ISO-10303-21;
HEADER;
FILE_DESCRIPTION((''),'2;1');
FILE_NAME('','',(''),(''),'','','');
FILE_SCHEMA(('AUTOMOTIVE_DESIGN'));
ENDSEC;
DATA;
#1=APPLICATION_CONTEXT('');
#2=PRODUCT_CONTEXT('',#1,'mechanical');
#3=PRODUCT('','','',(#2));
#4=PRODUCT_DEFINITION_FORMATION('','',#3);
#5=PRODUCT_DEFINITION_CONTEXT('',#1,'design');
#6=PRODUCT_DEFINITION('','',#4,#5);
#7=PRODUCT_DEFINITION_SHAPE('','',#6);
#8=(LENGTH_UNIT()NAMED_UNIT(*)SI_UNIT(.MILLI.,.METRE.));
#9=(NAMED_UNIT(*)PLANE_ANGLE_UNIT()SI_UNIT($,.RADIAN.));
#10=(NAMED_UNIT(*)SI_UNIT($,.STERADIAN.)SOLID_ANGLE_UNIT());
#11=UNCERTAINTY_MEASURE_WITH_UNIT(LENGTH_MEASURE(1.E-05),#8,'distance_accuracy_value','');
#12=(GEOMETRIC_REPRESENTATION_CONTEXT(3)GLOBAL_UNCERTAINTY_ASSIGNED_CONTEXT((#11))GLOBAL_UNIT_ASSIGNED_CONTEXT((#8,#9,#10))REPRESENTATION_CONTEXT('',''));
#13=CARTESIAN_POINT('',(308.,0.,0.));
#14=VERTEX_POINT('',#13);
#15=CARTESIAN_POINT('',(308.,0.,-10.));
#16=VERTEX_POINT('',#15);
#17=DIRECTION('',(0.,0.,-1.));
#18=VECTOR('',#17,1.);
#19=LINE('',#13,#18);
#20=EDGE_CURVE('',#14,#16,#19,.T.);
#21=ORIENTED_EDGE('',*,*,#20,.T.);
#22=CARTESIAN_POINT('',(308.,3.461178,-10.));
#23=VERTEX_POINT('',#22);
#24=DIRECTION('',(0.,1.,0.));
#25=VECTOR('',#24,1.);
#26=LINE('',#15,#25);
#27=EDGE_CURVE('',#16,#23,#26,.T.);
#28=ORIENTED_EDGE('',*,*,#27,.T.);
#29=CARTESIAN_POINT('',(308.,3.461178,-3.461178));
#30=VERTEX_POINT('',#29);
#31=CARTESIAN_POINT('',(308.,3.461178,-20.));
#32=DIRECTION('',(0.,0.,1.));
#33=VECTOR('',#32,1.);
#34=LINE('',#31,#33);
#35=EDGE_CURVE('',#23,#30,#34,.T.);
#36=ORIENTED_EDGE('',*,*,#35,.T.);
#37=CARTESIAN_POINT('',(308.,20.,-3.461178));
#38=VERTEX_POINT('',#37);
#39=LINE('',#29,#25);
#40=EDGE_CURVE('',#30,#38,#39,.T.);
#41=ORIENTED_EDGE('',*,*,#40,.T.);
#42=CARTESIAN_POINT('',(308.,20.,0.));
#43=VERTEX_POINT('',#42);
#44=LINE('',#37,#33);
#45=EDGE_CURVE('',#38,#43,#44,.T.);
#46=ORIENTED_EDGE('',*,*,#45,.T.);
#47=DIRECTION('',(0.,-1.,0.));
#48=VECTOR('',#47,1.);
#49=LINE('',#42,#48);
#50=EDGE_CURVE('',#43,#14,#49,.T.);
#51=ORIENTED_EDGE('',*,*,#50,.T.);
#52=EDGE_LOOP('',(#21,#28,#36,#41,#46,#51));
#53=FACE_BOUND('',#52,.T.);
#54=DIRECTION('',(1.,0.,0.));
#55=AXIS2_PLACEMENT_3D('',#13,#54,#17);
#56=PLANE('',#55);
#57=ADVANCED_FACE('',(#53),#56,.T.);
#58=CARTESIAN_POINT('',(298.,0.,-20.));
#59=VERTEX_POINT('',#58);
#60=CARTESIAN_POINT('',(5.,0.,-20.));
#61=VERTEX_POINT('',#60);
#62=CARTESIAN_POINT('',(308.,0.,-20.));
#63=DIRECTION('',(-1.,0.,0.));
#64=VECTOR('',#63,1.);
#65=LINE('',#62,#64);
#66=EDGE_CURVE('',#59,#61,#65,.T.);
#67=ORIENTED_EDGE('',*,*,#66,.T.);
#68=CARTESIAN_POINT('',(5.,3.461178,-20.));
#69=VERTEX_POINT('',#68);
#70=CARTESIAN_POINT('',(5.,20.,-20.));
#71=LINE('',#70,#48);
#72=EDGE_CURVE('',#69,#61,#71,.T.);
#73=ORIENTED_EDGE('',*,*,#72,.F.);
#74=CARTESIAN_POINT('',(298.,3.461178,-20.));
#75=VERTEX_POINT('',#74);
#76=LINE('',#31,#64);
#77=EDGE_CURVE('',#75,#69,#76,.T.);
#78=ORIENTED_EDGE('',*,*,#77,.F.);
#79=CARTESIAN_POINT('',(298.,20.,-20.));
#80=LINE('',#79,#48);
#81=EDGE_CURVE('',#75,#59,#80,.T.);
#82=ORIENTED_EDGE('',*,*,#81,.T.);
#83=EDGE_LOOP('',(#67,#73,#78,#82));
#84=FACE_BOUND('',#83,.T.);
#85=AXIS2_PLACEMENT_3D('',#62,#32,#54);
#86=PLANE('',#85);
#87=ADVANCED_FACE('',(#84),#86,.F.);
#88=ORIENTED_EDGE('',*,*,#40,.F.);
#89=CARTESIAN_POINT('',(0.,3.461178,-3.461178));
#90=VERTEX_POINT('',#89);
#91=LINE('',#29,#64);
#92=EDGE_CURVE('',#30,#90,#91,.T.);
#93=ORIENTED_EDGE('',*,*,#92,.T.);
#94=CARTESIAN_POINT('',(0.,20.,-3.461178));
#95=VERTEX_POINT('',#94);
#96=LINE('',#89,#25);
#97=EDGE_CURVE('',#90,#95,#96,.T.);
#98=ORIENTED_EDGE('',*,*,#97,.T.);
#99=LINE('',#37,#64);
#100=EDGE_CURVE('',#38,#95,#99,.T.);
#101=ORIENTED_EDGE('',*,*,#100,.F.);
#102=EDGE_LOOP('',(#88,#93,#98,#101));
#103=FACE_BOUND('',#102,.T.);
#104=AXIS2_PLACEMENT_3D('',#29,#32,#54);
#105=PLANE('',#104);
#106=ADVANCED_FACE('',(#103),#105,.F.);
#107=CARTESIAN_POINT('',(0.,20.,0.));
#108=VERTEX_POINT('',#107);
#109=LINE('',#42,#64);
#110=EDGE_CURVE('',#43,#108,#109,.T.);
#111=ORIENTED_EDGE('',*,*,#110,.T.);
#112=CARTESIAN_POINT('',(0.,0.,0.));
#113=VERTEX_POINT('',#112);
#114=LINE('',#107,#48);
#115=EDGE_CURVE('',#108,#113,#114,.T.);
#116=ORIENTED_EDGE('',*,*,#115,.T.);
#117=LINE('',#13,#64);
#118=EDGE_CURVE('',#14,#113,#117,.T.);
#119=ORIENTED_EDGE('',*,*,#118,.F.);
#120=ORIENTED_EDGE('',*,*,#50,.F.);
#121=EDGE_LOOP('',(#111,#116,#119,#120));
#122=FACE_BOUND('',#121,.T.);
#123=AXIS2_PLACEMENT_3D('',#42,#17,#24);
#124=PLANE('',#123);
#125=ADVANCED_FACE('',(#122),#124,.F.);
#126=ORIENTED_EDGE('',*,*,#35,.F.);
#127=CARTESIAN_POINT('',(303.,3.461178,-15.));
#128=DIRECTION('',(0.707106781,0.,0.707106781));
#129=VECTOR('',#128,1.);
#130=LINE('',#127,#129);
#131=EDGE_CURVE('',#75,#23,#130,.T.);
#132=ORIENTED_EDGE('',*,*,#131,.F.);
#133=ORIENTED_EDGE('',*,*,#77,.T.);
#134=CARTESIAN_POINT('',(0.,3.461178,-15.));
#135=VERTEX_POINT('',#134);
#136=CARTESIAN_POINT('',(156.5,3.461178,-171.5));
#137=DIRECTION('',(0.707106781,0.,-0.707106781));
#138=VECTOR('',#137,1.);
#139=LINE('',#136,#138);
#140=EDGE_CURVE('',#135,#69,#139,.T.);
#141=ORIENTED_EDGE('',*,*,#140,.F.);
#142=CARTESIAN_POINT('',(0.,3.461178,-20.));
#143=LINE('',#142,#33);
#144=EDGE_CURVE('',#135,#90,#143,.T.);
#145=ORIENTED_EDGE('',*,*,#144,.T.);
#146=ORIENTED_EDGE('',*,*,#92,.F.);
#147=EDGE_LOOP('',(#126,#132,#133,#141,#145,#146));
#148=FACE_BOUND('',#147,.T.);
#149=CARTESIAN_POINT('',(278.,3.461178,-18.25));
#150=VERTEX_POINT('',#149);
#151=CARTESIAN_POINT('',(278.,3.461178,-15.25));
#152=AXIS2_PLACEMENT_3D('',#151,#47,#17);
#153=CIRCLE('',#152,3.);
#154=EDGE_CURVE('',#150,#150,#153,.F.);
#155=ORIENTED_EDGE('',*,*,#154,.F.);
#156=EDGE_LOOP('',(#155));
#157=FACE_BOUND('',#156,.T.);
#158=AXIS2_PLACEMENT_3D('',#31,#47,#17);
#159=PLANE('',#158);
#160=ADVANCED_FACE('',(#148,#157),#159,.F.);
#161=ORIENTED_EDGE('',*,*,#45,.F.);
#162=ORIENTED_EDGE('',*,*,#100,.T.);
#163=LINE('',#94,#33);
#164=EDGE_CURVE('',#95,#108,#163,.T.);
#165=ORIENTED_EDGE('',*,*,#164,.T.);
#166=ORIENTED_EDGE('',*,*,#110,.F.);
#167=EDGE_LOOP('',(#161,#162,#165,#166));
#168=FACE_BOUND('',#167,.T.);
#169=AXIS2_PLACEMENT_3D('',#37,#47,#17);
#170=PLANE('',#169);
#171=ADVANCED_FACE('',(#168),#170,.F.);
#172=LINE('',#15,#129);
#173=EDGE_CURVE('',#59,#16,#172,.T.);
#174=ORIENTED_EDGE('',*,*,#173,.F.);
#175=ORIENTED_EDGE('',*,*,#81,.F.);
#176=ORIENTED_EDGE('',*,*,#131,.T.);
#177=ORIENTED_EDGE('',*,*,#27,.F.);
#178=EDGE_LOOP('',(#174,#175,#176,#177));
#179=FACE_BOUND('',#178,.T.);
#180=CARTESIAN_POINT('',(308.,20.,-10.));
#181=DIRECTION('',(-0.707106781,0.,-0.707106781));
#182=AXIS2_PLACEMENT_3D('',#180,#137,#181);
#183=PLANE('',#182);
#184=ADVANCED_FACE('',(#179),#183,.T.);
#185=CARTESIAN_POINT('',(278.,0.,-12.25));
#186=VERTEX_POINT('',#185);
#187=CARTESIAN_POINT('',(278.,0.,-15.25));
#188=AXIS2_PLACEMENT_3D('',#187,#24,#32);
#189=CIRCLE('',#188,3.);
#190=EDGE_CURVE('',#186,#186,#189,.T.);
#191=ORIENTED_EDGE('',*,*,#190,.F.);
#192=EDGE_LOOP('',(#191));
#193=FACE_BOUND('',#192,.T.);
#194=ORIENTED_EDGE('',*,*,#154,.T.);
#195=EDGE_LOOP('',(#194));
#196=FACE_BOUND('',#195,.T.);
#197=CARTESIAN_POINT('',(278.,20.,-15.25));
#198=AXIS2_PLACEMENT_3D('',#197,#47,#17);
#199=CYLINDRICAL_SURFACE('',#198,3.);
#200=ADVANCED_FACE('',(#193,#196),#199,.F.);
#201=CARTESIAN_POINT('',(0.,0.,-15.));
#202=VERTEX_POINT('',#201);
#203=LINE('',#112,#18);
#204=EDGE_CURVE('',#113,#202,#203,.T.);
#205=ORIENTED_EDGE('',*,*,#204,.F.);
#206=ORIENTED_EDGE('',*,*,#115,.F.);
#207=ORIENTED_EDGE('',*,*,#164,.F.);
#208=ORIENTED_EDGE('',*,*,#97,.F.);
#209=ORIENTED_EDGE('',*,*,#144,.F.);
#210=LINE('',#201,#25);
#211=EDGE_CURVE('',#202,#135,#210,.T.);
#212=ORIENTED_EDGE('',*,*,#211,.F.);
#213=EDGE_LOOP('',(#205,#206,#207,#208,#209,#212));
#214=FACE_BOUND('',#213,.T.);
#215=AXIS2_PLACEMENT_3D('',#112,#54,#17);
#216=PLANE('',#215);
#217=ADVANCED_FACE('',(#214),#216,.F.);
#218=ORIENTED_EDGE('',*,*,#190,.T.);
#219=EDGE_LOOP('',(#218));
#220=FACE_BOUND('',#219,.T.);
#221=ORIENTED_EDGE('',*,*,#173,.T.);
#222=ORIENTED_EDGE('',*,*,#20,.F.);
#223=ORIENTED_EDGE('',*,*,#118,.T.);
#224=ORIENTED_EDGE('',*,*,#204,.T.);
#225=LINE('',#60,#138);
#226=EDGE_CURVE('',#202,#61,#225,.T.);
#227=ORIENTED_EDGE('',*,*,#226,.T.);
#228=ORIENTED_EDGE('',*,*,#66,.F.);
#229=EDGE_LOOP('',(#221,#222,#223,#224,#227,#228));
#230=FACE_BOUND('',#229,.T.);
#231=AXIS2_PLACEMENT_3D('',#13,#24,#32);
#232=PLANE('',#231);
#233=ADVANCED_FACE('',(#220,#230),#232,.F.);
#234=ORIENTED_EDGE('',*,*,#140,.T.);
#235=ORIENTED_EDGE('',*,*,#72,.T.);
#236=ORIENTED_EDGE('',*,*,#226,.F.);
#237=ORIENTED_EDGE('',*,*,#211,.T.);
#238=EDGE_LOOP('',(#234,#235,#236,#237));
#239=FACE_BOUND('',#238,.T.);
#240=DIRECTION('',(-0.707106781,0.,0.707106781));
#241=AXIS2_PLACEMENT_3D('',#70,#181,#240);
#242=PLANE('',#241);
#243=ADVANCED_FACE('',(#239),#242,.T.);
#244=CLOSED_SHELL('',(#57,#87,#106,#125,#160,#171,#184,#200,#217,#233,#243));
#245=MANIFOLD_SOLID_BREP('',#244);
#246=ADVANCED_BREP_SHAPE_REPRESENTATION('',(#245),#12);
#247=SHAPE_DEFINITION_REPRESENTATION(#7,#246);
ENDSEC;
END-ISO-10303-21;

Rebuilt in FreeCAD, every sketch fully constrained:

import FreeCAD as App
import Part
import Sketcher
Q = App.Units.Quantity

doc = App.newDocument("Part")
params = doc.addObject("Spreadsheet::Sheet", "Params")
for row, (alias, value) in enumerate([
    ("sketch1_width", "20 mm"),
    ("pad1_length", "308 mm"),
    ("sketch2_diameter", "6 mm"),
    ("sketch2_width", "10 mm"),
    ("sketch2_width2", "5 mm"),
], start=1):
    params.set(f"A{row}", alias)
    params.set(f"B{row}", "=" + value)
    params.setAlias(f"B{row}", alias)

body = doc.addObject("PartDesign::Body", "Body")

# Sketch on YZ plane
sketch1 = body.newObject("Sketcher::SketchObject", "Sketch")
sketch1.AttachmentSupport = (doc.getObject("YZ_Plane"), [""])
sketch1.MapMode = "FlatFace"
sketch1.addGeometry([
    Part.LineSegment(App.Vector(0, 0, 0), App.Vector(0, -20, 0)),  # 0
    Part.LineSegment(App.Vector(0, -20, 0), App.Vector(3.5, -20, 0)),  # 1
    Part.LineSegment(App.Vector(3.5, -20, 0), App.Vector(3.5, -3.5, 0)),  # 2
    Part.LineSegment(App.Vector(3.5, -3.5, 0), App.Vector(20, -3.5, 0)),  # 3
    Part.LineSegment(App.Vector(20, -3.5, 0), App.Vector(20, 0, 0)),  # 4
    Part.LineSegment(App.Vector(20, 0, 0), App.Vector(0, 0, 0)),  # 5
], False)
sketch1.addConstraint([
    Sketcher.Constraint("Coincident", 0, 2, 1, 1),
    Sketcher.Constraint("Coincident", 1, 2, 2, 1),
    Sketcher.Constraint("Coincident", 2, 2, 3, 1),
    Sketcher.Constraint("Coincident", 3, 2, 4, 1),
    Sketcher.Constraint("Coincident", 4, 2, 5, 1),
    Sketcher.Constraint("Coincident", 5, 2, 0, 1),
    Sketcher.Constraint("Vertical", 0),
    Sketcher.Constraint("Horizontal", 1),
    Sketcher.Constraint("Vertical", 2),
    Sketcher.Constraint("Horizontal", 3),
    Sketcher.Constraint("Vertical", 4),
    Sketcher.Constraint("Horizontal", 5),
    Sketcher.Constraint("Coincident", 5, 2, -1, 1),
    Sketcher.Constraint("Equal", 5, 0),
    Sketcher.Constraint("Equal", 3, 2),
    Sketcher.Constraint("DistanceX", 5, 2, 5, 1, Q("20 mm")),
    Sketcher.Constraint("DistanceX", 1, 1, 1, 2, Q("3.461178 mm")),
])
sketch1.setExpression("Constraints[15]", "Params.sketch1_width")
pad1 = body.newObject("PartDesign::Pad", "Pad")
pad1.Profile = sketch1
pad1.setExpression("Length", "Params.pad1_length")

# Sketch on XZ plane
sketch2 = body.newObject("Sketcher::SketchObject", "Sketch001")
sketch2.AttachmentSupport = (doc.getObject("XZ_Plane"), [""])
sketch2.MapMode = "FlatFace"
sketch2.addGeometry([
    Part.Circle(App.Vector(278, -15.2, 0), App.Vector(0, 0, 1), 3),  # 0
    Part.LineSegment(App.Vector(298, -20, 0), App.Vector(308, -10, 0)),  # 1
    Part.LineSegment(App.Vector(308, -10, 0), App.Vector(308, -20, 0)),  # 2
    Part.LineSegment(App.Vector(308, -20, 0), App.Vector(298, -20, 0)),  # 3
    Part.LineSegment(App.Vector(5, -20, 0), App.Vector(0, -20, 0)),  # 4
    Part.LineSegment(App.Vector(0, -20, 0), App.Vector(0, -15, 0)),  # 5
    Part.LineSegment(App.Vector(0, -15, 0), App.Vector(5, -20, 0)),  # 6
], False)
sketch2.addConstraint([
    Sketcher.Constraint("Coincident", 1, 2, 2, 1),
    Sketcher.Constraint("Coincident", 2, 2, 3, 1),
    Sketcher.Constraint("Coincident", 3, 2, 1, 1),
    Sketcher.Constraint("Coincident", 4, 2, 5, 1),
    Sketcher.Constraint("Coincident", 5, 2, 6, 1),
    Sketcher.Constraint("Coincident", 6, 2, 4, 1),
    Sketcher.Constraint("Vertical", 2),
    Sketcher.Constraint("Horizontal", 3),
    Sketcher.Constraint("Horizontal", 4),
    Sketcher.Constraint("Vertical", 5),
    Sketcher.Constraint("PointOnObject", 4, 2, -2),
    Sketcher.Constraint("Perpendicular", 1, 6),
    Sketcher.Constraint("Horizontal", 3, 2, 4, 2),
    Sketcher.Constraint("Equal", 3, 2),
    Sketcher.Constraint("Diameter", 0, Q("6 mm")),
    Sketcher.Constraint("DistanceX", 3, 2, 3, 1, Q("10 mm")),
    Sketcher.Constraint("DistanceX", 4, 2, 4, 1, Q("5 mm")),
    Sketcher.Constraint("DistanceX", -1, 1, 0, 3, Q("278 mm")),
    Sketcher.Constraint("DistanceX", -1, 1, 1, 2, Q("308 mm")),
    Sketcher.Constraint("DistanceY", 1, 2, -1, 1, Q("10 mm")),
    Sketcher.Constraint("DistanceY", 0, 3, -1, 1, Q("15.25 mm")),
])
sketch2.setExpression("Constraints[14]", "Params.sketch2_diameter")
sketch2.setExpression("Constraints[15]", "Params.sketch2_width")
sketch2.setExpression("Constraints[16]", "Params.sketch2_width2")
pocket1 = body.newObject("PartDesign::Pocket", "Pocket")
pocket1.Profile = sketch2
pocket1.Type = "ThroughAll"

doc.recompute()
